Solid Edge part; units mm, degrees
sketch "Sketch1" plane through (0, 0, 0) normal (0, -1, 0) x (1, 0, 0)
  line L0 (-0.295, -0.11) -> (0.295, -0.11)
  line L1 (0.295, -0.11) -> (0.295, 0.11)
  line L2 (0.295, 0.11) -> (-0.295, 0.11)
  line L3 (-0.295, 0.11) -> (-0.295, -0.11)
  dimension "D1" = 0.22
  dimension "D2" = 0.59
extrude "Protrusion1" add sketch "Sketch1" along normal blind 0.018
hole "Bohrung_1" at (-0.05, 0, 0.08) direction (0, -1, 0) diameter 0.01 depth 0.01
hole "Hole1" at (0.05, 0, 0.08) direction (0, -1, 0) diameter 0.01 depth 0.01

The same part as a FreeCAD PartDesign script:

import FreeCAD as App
import Part
import Sketcher
from FreeCAD import Vector
Q = App.Units.Quantity


def add_polygon(sketch, points):
    """Adds a closed chain of lines whose ends are joined by coincident constraints."""
    first, n = sketch.GeometryCount, len(points)
    for a, b in zip(points, points[1:] + points[:1]):
        sketch.addGeometry(Part.LineSegment(App.Vector(*a, 0), App.Vector(*b, 0)), False)
    for i in range(n):
        sketch.addConstraint(Sketcher.Constraint("Coincident", first + i, 2, first + (i + 1) % n, 1))

doc = App.newDocument("Part")
body = doc.addObject("PartDesign::Body", "Body")

# Sketch on XZ plane
sketch1 = body.newObject("Sketcher::SketchObject", "Sketch")
sketch1.AttachmentSupport = (doc.getObject("XZ_Plane"), [""])
sketch1.MapMode = "FlatFace"
add_polygon(sketch1, [(-0.29, 0.11), (-0.29, -0.11), (0.29, -0.11), (0.29, 0.11)])  # lines 0-3
sketch1.addConstraint([
    Sketcher.Constraint("Vertical", 0),
    Sketcher.Constraint("Horizontal", 1),
    Sketcher.Constraint("Vertical", 2),
    Sketcher.Constraint("Horizontal", 3),
    Sketcher.Constraint("Symmetric", 0, 2, 2, 2, -1, 1),
    Sketcher.Constraint("DistanceX", 0, 2, -1, 1, Q("0.295 mm")),
    Sketcher.Constraint("DistanceY", 0, 2, 0, 1, Q("0.22 mm")),
])
pad1 = body.newObject("PartDesign::Pad", "Pad")
pad1.Profile = sketch1
pad1.Length = 0.018

# Sketch on XZ plane
sketch2 = body.newObject("Sketcher::SketchObject", "Sketch001")
sketch2.AttachmentSupport = (doc.getObject("XZ_Plane"), [""])
sketch2.MapMode = "FlatFace"
sketch2.addGeometry(Part.Circle(Vector(-0.05, 0.08, 0), Vector(0, 0, 1), 0.005), False)
sketch2.addConstraint([
    Sketcher.Constraint("Diameter", 0, Q("0.01 mm")),
    Sketcher.Constraint("DistanceX", 0, 3, -1, 1, Q("0.05 mm")),
    Sketcher.Constraint("DistanceY", -1, 1, 0, 3, Q("0.08 mm")),
])
doc.recompute()
hole = body.newObject("PartDesign::Hole", "Hole")
hole.Profile = sketch2
hole.ThreadType = "None"
hole.Diameter = 0.01
hole.DepthType = "Dimension"
hole.Depth = 0.01
hole.DrillPoint = "Flat"
hole.Reversed = True

# Sketch on XZ plane
sketch3 = body.newObject("Sketcher::SketchObject", "Sketch002")
sketch3.AttachmentSupport = (doc.getObject("XZ_Plane"), [""])
sketch3.MapMode = "FlatFace"
sketch3.addGeometry(Part.Circle(Vector(0.05, 0.08, 0), Vector(0, 0, 1), 0.005), False)
sketch3.addConstraint([
    Sketcher.Constraint("Diameter", 0, Q("0.01 mm")),
    Sketcher.Constraint("DistanceX", -1, 1, 0, 3, Q("0.05 mm")),
    Sketcher.Constraint("DistanceY", -1, 1, 0, 3, Q("0.08 mm")),
])
doc.recompute()
hole2 = body.newObject("PartDesign::Hole", "Hole001")
hole2.Profile = sketch3
hole2.ThreadType = "None"
hole2.Diameter = 0.01
hole2.DepthType = "Dimension"
hole2.Depth = 0.01
hole2.DrillPoint = "Flat"
hole2.Reversed = True

doc.recompute()
